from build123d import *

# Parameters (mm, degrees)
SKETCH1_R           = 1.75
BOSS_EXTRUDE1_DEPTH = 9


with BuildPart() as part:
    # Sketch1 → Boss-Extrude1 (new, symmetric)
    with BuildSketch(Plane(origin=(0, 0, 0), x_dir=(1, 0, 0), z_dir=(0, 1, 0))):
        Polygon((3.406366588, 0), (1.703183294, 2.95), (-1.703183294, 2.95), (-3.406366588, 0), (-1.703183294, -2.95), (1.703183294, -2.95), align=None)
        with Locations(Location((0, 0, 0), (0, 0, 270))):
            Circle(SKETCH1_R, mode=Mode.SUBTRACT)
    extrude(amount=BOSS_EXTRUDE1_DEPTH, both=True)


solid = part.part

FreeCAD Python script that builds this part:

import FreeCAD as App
import Part
import Sketcher
from FreeCAD import Vector
Q = App.Units.Quantity


def add_polygon(sketch, points):
    """Adds a closed chain of lines whose ends are joined by coincident constraints."""
    first, n = sketch.GeometryCount, len(points)
    for a, b in zip(points, points[1:] + points[:1]):
        sketch.addGeometry(Part.LineSegment(App.Vector(*a, 0), App.Vector(*b, 0)), False)
    for i in range(n):
        sketch.addConstraint(Sketcher.Constraint("Coincident", first + i, 2, first + (i + 1) % n, 1))

doc = App.newDocument("Part")
body = doc.addObject("PartDesign::Body", "Body")

sketch1 = doc.addObject("Sketcher::SketchObject", "Sketch")
body.addObject(sketch1)
sketch1.AttachmentSupport = (doc.XZ_Plane, [""])
sketch1.MapMode = "FlatFace"
add_polygon(sketch1, [(3.4, 0), (1.7, -3), (-1.7, -3), (-3.4, 0), (-1.7, 3), (1.7, 3)])
sketch1.addGeometry(Part.Circle(Vector(0, 0, 0), Vector(0, 0, 1), 1.8), False)
sketch1.addConstraint([
    Sketcher.Constraint("Horizontal", 1),
    Sketcher.Constraint("Horizontal", 4),
    Sketcher.Constraint("Coincident", 6, 3, -1, 1),
    Sketcher.Constraint("Symmetric", 0, 2, 3, 2, -1, 1),
    Sketcher.Constraint("Symmetric", 2, 2, 5, 2, -1, 1),
    Sketcher.Constraint("PointOnObject", 2, 2, -1),
    Sketcher.Constraint("Parallel", 2, 5),
    Sketcher.Constraint("Vertical", 1, 2, 3, 2),
    Sketcher.Constraint("Diameter", 6, 3.5),
    Sketcher.Constraint("Angle", 0, Q("-120 deg")),
    Sketcher.Constraint("DistanceY", 1, 2, 3, 2, 5.9),
    Sketcher.Constraint("DistanceX", 1, 2, 1, 1, 3.406367),
])
pad1 = doc.addObject("PartDesign::Pad", "Pad")
body.addObject(pad1)
pad1.Profile = sketch1
pad1.Length = 18
pad1.Midplane = True

doc.recompute()
